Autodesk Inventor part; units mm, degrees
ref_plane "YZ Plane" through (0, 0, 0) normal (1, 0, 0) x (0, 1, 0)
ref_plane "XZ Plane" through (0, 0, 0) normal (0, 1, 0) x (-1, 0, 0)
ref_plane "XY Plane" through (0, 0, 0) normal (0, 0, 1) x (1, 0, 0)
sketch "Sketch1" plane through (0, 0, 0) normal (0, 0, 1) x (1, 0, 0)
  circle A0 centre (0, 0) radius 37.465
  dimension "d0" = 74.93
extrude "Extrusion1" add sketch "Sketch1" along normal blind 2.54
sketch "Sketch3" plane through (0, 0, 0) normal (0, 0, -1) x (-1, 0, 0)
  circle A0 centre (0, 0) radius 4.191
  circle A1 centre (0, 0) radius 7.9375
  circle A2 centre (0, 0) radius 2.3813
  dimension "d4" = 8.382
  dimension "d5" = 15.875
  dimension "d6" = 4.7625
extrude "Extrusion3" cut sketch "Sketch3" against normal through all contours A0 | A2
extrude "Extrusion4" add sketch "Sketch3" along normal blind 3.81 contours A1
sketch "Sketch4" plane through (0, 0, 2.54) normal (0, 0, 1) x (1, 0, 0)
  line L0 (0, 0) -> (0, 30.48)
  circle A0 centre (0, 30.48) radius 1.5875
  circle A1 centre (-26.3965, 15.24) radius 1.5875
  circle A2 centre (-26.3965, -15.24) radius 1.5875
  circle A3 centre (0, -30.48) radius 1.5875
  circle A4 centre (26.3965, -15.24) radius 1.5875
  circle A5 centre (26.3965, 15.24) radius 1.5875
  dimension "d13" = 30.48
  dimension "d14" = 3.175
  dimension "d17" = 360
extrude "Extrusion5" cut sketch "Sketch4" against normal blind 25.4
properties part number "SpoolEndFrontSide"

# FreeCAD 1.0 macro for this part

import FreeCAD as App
import Part
import Sketcher
from FreeCAD import Vector
Q = App.Units.Quantity

doc = App.newDocument("Part")
params = doc.addObject("Spreadsheet::Sheet", "Params")
for row, (alias, value) in enumerate([
    ("sketch1_diameter", "2.95 in"),
    ("pad1_length", "0.1 in"),
    ("sketch2_diameter", "0.33 in"),
    ("sketch3_diameter", "0.33 in"),
    ("sketch3_diameter2", "0.625 in"),
    ("pad2_length", "0.15 in"),
    ("sketch4_diameter", "0.125 in"),
    ("pocket2_length", "1 in"),
], start=1):
    params.set(f"A{row}", alias)
    params.set(f"B{row}", "=" + value)
    params.setAlias(f"B{row}", alias)

body = doc.addObject("PartDesign::Body", "Body")

sketch1 = doc.addObject("Sketcher::SketchObject", "Sketch")
body.addObject(sketch1)
sketch1.AttachmentSupport = (doc.XY_Plane, [""])
sketch1.MapMode = "FlatFace"
sketch1.addGeometry(Part.Circle(Vector(0, 0, 0), Vector(0, 0, 1), 37.465), False)
sketch1.addConstraint([
    Sketcher.Constraint("Coincident", 0, 3, -1, 1),
    Sketcher.Constraint("Diameter", 0, Q("2.95 in")),
])
sketch1.setExpression("Constraints[1]", "Params.sketch1_diameter")
pad1 = doc.addObject("PartDesign::Pad", "Pad")
body.addObject(pad1)
pad1.Profile = sketch1
pad1.setExpression("Length", "Params.pad1_length")

sketch2 = doc.addObject("Sketcher::SketchObject", "Sketch001")
body.addObject(sketch2)
sketch2.AttachmentSupport = (doc.XY_Plane, [""])
sketch2.MapMode = "FlatFace"
sketch2.addGeometry(Part.Circle(Vector(0, 0, 0), Vector(0, 0, 1), 4.191), False)
sketch2.addConstraint([
    Sketcher.Constraint("Coincident", 0, 3, -1, 1),
    Sketcher.Constraint("Diameter", 0, Q("0.33 in")),
])
sketch2.setExpression("Constraints[1]", "Params.sketch2_diameter")
pocket1 = doc.addObject("PartDesign::Pocket", "Pocket")
body.addObject(pocket1)
pocket1.Profile = sketch2
pocket1.Type = "ThroughAll"
pocket1.Reversed = True

sketch3 = doc.addObject("Sketcher::SketchObject", "Sketch002")
body.addObject(sketch3)
sketch3.AttachmentSupport = (doc.XY_Plane, [""])
sketch3.MapMode = "FlatFace"
sketch3.addGeometry([
    Part.Circle(Vector(0, 0, 0), Vector(0, 0, 1), 7.9375),
    Part.Circle(Vector(0, 0, 0), Vector(0, 0, 1), 4.191),
], False)
sketch3.addConstraint([
    Sketcher.Constraint("Coincident", 0, 3, -1, 1),
    Sketcher.Constraint("Coincident", 1, 3, -1, 1),
    Sketcher.Constraint("Diameter", 1, Q("0.33 in")),
    Sketcher.Constraint("Diameter", 0, Q("0.625 in")),
])
sketch3.setExpression("Constraints[2]", "Params.sketch3_diameter")
sketch3.setExpression("Constraints[3]", "Params.sketch3_diameter2")
pad2 = doc.addObject("PartDesign::Pad", "Pad001")
body.addObject(pad2)
pad2.Profile = sketch3
pad2.setExpression("Length", "Params.pad2_length")
pad2.Reversed = True

sketch4 = doc.addObject("Sketcher::SketchObject", "Sketch003")
body.addObject(sketch4)
sketch4.AttachmentSupport = (doc.XY_Plane, [""])
sketch4.MapMode = "FlatFace"
sketch4.AttachmentOffset = App.Placement(Vector(0, 0, 0.1 * 25.4), App.Rotation())
sketch4.addGeometry([
    Part.Circle(Vector(0, 30.48, 0), Vector(0, 0, 1), 1.5875),
    Part.Circle(Vector(-26.3965, 15.24, 0), Vector(0, 0, 1), 1.5875),
    Part.Circle(Vector(-26.3965, -15.24, 0), Vector(0, 0, 1), 1.5875),
    Part.Circle(Vector(0, -30.48, 0), Vector(0, 0, 1), 1.5875),
    Part.Circle(Vector(26.3965, -15.24, 0), Vector(0, 0, 1), 1.5875),
    Part.Circle(Vector(26.3965, 15.24, 0), Vector(0, 0, 1), 1.5875),
], False)
sketch4.addConstraint([
    Sketcher.Constraint("Equal", 0, 1),
    Sketcher.Constraint("Equal", 1, 2),
    Sketcher.Constraint("Equal", 2, 3),
    Sketcher.Constraint("Equal", 3, 4),
    Sketcher.Constraint("Equal", 4, 5),
    Sketcher.Constraint("Symmetric", 0, 3, 3, 3, -1, 1),
    Sketcher.Constraint("Symmetric", 1, 3, 4, 3, -1, 1),
    Sketcher.Constraint("Symmetric", 2, 3, 5, 3, -1, 1),
    Sketcher.Constraint("Symmetric", 2, 3, 4, 3, -2),
    Sketcher.Constraint("PointOnObject", 0, 3, -2),
    Sketcher.Constraint("Diameter", 0, Q("0.125 in")),
    Sketcher.Constraint("DistanceY", -1, 1, 0, 3, Q("1.2 in")),
    Sketcher.Constraint("DistanceY", 2, 3, 1, 3, Q("1.2 in")),
    Sketcher.Constraint("DistanceX", 1, 3, -1, 1, Q("26.3965 mm")),
])
sketch4.setExpression("Constraints[10]", "Params.sketch4_diameter")
pocket2 = doc.addObject("PartDesign::Pocket", "Pocket001")
body.addObject(pocket2)
pocket2.Profile = sketch4
pocket2.setExpression("Length", "Params.pocket2_length")

doc.recompute()
